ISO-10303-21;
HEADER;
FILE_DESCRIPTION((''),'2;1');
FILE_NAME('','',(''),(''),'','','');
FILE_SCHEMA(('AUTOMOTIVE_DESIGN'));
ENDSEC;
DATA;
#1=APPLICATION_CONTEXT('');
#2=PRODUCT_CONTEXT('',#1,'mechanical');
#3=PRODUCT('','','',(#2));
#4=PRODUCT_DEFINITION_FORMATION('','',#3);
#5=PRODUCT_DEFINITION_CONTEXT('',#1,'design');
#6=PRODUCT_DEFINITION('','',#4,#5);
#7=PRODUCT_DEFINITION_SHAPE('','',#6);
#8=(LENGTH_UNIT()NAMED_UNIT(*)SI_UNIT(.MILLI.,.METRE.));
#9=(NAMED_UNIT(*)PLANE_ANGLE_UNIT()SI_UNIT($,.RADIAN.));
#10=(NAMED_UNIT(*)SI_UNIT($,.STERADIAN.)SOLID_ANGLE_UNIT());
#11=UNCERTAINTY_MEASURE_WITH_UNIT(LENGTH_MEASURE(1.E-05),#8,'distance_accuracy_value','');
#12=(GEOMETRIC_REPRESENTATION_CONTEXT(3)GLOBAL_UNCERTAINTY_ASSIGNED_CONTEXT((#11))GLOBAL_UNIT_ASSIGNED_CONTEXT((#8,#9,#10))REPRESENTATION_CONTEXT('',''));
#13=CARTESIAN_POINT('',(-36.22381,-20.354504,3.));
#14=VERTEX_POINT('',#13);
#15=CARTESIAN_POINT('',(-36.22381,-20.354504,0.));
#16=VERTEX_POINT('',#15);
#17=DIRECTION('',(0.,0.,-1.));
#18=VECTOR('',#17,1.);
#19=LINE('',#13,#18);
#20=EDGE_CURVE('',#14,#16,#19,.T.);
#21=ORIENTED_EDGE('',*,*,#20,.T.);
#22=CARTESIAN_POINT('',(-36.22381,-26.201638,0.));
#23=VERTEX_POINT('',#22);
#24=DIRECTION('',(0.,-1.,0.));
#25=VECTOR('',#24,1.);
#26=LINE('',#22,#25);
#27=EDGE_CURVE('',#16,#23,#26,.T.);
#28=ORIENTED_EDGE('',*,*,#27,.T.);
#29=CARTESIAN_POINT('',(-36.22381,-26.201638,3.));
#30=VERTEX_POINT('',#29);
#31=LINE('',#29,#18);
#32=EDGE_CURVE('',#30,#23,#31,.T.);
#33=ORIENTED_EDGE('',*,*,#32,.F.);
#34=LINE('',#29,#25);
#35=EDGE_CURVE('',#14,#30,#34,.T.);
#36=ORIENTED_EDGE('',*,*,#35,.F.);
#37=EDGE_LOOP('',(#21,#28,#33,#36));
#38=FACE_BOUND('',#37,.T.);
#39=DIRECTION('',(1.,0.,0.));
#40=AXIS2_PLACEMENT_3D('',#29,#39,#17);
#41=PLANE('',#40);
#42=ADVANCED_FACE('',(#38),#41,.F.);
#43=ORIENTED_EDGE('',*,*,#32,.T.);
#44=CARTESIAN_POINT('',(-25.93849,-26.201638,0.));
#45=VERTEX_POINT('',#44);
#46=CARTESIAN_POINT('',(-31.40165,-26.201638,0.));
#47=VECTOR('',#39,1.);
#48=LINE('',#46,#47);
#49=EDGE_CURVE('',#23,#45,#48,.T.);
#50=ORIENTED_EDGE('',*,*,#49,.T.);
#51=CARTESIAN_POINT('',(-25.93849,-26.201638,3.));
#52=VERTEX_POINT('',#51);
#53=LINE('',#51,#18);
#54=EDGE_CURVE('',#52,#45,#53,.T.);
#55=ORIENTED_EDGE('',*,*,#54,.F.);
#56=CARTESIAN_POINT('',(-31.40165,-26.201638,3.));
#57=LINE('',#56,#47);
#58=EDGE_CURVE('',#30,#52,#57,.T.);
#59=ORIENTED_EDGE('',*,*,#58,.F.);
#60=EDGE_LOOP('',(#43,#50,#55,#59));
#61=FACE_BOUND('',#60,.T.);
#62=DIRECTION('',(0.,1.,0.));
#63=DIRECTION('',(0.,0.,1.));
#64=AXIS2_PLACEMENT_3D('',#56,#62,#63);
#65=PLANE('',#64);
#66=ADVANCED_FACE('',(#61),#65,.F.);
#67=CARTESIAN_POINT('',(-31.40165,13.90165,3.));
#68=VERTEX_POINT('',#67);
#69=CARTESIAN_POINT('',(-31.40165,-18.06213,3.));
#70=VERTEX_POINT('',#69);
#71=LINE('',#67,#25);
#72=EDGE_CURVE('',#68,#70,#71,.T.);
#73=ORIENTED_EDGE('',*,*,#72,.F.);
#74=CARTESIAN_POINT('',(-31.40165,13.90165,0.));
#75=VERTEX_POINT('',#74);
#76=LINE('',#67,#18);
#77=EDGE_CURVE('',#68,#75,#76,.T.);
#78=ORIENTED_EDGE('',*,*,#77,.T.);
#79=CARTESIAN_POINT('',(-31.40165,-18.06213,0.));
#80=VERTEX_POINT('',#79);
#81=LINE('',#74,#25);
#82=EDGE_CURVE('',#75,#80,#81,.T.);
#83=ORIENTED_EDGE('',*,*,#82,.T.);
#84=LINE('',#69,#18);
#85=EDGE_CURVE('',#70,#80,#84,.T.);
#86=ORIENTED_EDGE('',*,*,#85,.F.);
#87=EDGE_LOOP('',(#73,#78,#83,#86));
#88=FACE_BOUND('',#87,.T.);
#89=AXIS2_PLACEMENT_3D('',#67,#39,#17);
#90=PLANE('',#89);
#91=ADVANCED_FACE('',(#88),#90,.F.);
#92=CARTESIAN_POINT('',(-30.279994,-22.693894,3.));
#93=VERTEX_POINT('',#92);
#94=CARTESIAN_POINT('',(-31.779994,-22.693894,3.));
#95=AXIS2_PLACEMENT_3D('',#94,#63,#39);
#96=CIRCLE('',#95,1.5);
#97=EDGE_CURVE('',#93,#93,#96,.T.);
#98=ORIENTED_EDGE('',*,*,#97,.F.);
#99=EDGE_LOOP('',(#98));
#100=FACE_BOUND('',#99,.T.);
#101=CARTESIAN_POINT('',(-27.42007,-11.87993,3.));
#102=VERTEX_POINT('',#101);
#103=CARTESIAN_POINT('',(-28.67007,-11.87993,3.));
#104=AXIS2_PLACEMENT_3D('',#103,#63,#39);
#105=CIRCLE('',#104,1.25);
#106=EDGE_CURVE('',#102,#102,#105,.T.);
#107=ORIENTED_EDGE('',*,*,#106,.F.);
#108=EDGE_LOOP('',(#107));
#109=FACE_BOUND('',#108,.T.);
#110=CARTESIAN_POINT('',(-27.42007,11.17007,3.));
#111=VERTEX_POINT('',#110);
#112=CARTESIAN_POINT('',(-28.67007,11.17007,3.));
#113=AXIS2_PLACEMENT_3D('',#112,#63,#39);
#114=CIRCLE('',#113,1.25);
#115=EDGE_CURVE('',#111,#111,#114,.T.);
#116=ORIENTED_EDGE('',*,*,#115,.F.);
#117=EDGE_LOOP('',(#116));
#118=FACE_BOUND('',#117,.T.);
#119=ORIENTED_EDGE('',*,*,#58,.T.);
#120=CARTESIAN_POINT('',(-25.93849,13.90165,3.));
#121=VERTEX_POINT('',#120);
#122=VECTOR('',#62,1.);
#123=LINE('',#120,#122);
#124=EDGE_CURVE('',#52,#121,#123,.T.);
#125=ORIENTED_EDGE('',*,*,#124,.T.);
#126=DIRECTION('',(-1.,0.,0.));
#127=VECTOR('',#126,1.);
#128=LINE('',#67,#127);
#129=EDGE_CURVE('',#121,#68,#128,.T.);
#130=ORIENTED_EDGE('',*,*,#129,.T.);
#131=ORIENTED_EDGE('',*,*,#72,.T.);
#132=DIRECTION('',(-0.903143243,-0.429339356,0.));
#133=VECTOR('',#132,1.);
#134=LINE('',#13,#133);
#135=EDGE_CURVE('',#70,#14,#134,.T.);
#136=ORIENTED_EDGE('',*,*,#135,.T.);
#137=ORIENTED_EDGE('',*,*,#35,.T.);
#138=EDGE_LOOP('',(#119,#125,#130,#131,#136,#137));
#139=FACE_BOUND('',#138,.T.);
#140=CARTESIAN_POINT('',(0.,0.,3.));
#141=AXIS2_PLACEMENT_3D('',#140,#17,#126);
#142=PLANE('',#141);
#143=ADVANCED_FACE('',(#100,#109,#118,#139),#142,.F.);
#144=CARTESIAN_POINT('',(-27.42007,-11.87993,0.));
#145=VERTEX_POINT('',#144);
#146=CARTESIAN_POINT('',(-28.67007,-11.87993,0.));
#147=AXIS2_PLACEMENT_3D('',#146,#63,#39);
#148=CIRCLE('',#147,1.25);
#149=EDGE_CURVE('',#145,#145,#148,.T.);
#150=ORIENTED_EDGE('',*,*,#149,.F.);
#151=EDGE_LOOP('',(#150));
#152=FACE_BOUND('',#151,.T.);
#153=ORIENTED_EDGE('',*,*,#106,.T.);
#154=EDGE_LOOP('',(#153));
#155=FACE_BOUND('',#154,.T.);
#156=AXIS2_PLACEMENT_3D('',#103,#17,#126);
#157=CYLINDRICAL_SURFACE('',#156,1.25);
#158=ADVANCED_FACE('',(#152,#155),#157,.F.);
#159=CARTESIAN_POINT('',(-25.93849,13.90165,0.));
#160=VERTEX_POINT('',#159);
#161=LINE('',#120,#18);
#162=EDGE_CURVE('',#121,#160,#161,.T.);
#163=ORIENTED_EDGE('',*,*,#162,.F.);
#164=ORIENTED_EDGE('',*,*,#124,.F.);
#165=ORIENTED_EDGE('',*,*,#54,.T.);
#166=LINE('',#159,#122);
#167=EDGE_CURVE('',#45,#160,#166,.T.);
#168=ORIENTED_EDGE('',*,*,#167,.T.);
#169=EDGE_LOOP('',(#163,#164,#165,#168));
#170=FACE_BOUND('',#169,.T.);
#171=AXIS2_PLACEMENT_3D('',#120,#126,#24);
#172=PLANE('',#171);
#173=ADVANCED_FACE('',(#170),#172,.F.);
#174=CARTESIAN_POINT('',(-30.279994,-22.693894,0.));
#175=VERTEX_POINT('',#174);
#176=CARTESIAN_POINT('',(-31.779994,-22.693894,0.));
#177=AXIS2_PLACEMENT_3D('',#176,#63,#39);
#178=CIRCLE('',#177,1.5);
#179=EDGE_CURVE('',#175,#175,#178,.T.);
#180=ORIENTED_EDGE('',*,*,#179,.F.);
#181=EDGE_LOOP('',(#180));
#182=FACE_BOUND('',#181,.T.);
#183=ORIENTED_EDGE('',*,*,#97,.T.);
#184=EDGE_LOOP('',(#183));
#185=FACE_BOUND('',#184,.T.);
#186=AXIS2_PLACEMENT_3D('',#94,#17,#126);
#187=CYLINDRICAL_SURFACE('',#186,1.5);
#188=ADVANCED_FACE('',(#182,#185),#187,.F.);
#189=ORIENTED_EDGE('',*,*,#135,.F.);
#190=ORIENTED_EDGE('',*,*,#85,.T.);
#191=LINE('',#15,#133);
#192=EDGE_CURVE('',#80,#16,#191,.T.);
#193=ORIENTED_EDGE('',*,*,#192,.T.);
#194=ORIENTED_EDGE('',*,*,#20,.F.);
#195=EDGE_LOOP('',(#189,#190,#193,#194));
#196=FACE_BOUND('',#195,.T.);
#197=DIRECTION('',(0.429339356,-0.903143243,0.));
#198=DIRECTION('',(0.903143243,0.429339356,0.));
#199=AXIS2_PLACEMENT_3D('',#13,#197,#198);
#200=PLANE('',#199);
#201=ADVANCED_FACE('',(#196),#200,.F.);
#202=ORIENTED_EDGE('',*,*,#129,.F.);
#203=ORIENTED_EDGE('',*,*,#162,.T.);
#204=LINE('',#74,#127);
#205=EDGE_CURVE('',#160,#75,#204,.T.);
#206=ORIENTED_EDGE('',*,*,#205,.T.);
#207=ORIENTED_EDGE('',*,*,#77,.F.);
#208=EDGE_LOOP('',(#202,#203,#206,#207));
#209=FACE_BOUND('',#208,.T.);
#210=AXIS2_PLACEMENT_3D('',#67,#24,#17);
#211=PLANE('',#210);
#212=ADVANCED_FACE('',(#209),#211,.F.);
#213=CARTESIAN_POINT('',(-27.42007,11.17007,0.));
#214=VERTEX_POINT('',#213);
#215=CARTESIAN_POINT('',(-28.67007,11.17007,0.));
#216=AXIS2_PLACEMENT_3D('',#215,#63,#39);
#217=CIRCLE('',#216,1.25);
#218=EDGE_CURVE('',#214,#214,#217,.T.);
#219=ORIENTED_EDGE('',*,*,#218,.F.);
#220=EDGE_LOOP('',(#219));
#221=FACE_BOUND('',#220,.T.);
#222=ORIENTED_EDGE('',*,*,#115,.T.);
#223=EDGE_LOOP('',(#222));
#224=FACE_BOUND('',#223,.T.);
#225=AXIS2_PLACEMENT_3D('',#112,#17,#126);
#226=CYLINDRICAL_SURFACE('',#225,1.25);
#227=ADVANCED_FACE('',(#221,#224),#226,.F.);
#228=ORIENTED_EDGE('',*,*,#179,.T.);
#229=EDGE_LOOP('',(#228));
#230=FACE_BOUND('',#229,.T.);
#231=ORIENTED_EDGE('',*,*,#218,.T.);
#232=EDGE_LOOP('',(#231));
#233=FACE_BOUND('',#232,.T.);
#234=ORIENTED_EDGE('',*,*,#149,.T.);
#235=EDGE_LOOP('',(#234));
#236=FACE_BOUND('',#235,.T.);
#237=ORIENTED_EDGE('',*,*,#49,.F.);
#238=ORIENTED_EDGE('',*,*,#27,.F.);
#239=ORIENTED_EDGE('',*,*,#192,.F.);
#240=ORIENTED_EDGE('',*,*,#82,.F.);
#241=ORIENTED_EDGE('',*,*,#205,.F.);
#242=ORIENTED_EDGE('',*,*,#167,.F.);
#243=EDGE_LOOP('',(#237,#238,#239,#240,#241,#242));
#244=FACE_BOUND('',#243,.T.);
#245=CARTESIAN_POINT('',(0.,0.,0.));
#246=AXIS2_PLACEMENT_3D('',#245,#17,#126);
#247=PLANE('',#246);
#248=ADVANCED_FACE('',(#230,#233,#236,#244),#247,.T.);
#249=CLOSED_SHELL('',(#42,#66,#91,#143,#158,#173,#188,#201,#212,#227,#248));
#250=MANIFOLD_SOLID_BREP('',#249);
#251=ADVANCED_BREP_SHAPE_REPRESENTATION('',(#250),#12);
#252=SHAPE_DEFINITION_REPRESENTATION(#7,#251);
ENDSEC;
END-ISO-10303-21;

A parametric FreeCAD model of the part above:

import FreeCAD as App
import Part
import Sketcher
from FreeCAD import Vector
Q = App.Units.Quantity


def add_polygon(sketch, points):
    """Adds a closed chain of lines whose ends are joined by coincident constraints."""
    first, n = sketch.GeometryCount, len(points)
    for a, b in zip(points, points[1:] + points[:1]):
        sketch.addGeometry(Part.LineSegment(App.Vector(*a, 0), App.Vector(*b, 0)), False)
    for i in range(n):
        sketch.addConstraint(Sketcher.Constraint("Coincident", first + i, 2, first + (i + 1) % n, 1))

doc = App.newDocument("Part")
body = doc.addObject("PartDesign::Body", "Body")

# Sketch on XY plane
sketch1 = doc.addObject("Sketcher::SketchObject", "Sketch")
body.addObject(sketch1)
sketch1.AttachmentSupport = (doc.XY_Plane, [""])
sketch1.MapMode = "FlatFace"
add_polygon(sketch1, [(-25.9, 13.9), (-31.4, 13.9), (-31.4, -18.1), (-36.2, -20.4), (-36.2, -26.2), (-25.9, -26.2)])  # lines 0-5
sketch1.addGeometry(Part.Circle(Vector(-28.7, -11.9, 0), Vector(0, 0, 1), 1.2), False)  # 6
sketch1.addGeometry(Part.Circle(Vector(-31.8, -22.7, 0), Vector(0, 0, 1), 1.5), False)  # 7
sketch1.addGeometry(Part.Circle(Vector(-28.7, 11.2, 0), Vector(0, 0, 1), 1.2), False)  # 8
sketch1.addConstraint([
    Sketcher.Constraint("Horizontal", 0),
    Sketcher.Constraint("Vertical", 1),
    Sketcher.Constraint("Vertical", 3),
    Sketcher.Constraint("Horizontal", 4),
    Sketcher.Constraint("Vertical", 5),
    Sketcher.Constraint("Equal", 6, 8),
    Sketcher.Constraint("Vertical", 6, 3, 8, 3),
    Sketcher.Constraint("Diameter", 7, Q("3 mm")),
    Sketcher.Constraint("Diameter", 6, Q("2.5 mm")),
    Sketcher.Constraint("DistanceY", 6, 3, 8, 3, Q("23.05 mm")),
    Sketcher.Constraint("DistanceX", 0, 2, 0, 1, Q("5.46316 mm")),
    Sketcher.Constraint("DistanceX", 4, 1, 4, 2, Q("10.285319 mm")),
    Sketcher.Constraint("DistanceY", 1, 2, 1, 1, Q("31.96378 mm")),
    Sketcher.Constraint("DistanceY", 5, 1, 5, 2, Q("40.103289 mm")),
    Sketcher.Constraint("DistanceY", 1, 2, 6, 3, Q("6.1822 mm")),
    Sketcher.Constraint("DistanceY", 3, 2, 3, 1, Q("5.847134 mm")),
    Sketcher.Constraint("DistanceX", 6, 3, -1, 1, Q("28.67007 mm")),
    Sketcher.Constraint("DistanceY", 6, 3, -1, 1, Q("11.87993 mm")),
    Sketcher.Constraint("DistanceX", 0, 2, -1, 1, Q("31.40165 mm")),
    Sketcher.Constraint("DistanceY", 7, 3, 2, 2, Q("2.339389 mm")),
    Sketcher.Constraint("DistanceX", 7, 3, -1, 1, Q("31.779994 mm")),
])
pad1 = doc.addObject("PartDesign::Pad", "Pad")
body.addObject(pad1)
pad1.Profile = sketch1
pad1.Length = 3

doc.recompute()
